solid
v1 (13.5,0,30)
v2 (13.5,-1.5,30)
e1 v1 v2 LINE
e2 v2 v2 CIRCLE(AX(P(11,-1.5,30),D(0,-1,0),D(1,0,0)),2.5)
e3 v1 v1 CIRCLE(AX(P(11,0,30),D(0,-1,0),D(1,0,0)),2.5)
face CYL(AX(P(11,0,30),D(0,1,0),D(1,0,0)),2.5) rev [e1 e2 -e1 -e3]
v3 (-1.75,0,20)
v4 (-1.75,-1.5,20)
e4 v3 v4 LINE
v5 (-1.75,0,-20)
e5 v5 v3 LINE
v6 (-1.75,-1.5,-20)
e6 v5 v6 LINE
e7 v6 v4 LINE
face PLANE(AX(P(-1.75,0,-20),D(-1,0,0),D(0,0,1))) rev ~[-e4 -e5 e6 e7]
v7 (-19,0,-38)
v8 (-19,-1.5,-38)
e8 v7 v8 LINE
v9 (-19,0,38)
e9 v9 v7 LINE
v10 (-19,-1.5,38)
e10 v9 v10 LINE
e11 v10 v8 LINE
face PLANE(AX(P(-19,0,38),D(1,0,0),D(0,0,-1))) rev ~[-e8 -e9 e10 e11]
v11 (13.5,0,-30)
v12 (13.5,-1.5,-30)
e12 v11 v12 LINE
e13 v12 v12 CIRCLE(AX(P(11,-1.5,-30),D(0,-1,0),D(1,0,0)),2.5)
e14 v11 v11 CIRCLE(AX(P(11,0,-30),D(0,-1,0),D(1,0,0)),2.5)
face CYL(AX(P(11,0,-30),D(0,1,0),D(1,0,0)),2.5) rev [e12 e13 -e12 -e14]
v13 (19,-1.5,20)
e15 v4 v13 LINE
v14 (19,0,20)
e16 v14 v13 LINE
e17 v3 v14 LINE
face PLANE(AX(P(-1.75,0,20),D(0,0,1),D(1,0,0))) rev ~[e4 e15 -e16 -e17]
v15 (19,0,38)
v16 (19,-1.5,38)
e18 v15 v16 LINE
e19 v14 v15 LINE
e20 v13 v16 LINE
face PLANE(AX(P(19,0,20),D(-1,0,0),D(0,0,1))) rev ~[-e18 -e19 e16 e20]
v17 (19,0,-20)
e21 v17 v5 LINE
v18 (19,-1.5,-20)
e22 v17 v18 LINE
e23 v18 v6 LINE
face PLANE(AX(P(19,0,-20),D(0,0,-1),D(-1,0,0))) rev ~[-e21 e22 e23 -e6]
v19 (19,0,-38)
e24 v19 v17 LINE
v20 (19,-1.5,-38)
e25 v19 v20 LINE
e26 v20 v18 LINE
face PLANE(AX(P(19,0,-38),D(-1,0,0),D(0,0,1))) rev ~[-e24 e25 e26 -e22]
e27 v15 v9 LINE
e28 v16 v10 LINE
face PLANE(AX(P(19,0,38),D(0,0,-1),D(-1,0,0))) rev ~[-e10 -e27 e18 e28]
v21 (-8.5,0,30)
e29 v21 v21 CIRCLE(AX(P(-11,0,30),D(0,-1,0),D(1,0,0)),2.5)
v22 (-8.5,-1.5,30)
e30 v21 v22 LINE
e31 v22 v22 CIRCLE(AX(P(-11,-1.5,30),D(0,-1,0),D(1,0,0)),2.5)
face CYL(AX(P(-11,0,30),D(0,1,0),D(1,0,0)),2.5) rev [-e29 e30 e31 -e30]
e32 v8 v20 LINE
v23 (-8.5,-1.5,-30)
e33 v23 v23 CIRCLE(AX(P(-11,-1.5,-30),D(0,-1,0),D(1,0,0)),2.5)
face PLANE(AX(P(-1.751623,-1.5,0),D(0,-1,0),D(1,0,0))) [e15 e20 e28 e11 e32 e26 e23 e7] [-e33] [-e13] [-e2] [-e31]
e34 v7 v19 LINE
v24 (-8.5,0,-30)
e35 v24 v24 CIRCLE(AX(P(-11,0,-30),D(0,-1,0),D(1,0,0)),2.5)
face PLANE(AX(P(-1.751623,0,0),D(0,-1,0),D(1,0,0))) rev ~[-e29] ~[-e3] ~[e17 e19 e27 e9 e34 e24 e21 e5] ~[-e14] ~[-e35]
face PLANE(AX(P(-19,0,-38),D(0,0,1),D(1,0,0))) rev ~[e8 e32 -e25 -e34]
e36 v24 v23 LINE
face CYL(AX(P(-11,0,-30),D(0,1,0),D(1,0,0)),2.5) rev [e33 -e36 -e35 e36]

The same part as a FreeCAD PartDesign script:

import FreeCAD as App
import Part
import Sketcher
from FreeCAD import Vector

doc = App.newDocument("Part")
body = doc.addObject("PartDesign::Body", "Body")

sketch1 = body.newObject("Sketcher::SketchObject", "Sketch")
sketch1.AttachmentSupport = (doc.getObject("XZ_Plane"), [""])
sketch1.MapMode = "FlatFace"
sketch1.addGeometry([
    Part.LineSegment(Vector(19, 20, 0), Vector(19, 38, 0)),
    Part.LineSegment(Vector(19, 38, 0), Vector(-19, 38, 0)),
    Part.LineSegment(Vector(-19, 38, 0), Vector(-19, -38, 0)),
    Part.LineSegment(Vector(-19, -38, 0), Vector(19, -38, 0)),
    Part.LineSegment(Vector(19, -38, 0), Vector(19, -20, 0)),
    Part.LineSegment(Vector(19, -20, 0), Vector(-1.8, -20, 0)),
    Part.LineSegment(Vector(-1.8, -20, 0), Vector(-1.8, 20, 0)),
    Part.LineSegment(Vector(-1.8, 20, 0), Vector(19, 20, 0)),
    Part.Circle(Vector(-11, -30, 0), Vector(0, 0, 1), 2.5),
    Part.Circle(Vector(11, -30, 0), Vector(0, 0, 1), 2.5),
    Part.Circle(Vector(-11, 30, 0), Vector(0, 0, 1), 2.5),
    Part.Circle(Vector(11, 30, 0), Vector(0, 0, 1), 2.5),
], False)
sketch1.addConstraint([
    Sketcher.Constraint("Coincident", 0, 2, 1, 1),
    Sketcher.Constraint("Coincident", 1, 2, 2, 1),
    Sketcher.Constraint("Coincident", 2, 2, 3, 1),
    Sketcher.Constraint("Coincident", 3, 2, 4, 1),
    Sketcher.Constraint("Coincident", 4, 2, 5, 1),
    Sketcher.Constraint("Coincident", 5, 2, 6, 1),
    Sketcher.Constraint("Coincident", 6, 2, 7, 1),
    Sketcher.Constraint("Coincident", 7, 2, 0, 1),
    Sketcher.Constraint("Vertical", 0),
    Sketcher.Constraint("Horizontal", 1),
    Sketcher.Constraint("Vertical", 2),
    Sketcher.Constraint("Horizontal", 3),
    Sketcher.Constraint("Vertical", 4),
    Sketcher.Constraint("Horizontal", 5),
    Sketcher.Constraint("Vertical", 6),
    Sketcher.Constraint("Horizontal", 7),
    Sketcher.Constraint("Equal", 8, 9),
    Sketcher.Constraint("Equal", 9, 10),
    Sketcher.Constraint("Equal", 10, 11),
    Sketcher.Constraint("Symmetric", 9, 3, 10, 3, -1, 1),
    Sketcher.Constraint("Symmetric", 8, 3, 11, 3, -1, 1),
    Sketcher.Constraint("Symmetric", 0, 2, 2, 2, -1, 1),
    Sketcher.Constraint("Symmetric", 8, 3, 9, 3, -2),
    Sketcher.Constraint("Symmetric", 4, 2, 7, 2, -1),
    Sketcher.Constraint("Diameter", 8, 5.0),
    Sketcher.Constraint("DistanceX", 1, 2, 1, 1, 38.0),
    Sketcher.Constraint("DistanceY", 0, 1, 0, 2, 18.0),
    Sketcher.Constraint("DistanceY", 2, 2, 2, 1, 76.0),
    Sketcher.Constraint("DistanceX", 8, 3, -1, 1, 11.0),
    Sketcher.Constraint("DistanceY", 8, 3, -1, 1, 30.0),
    Sketcher.Constraint("DistanceX", 5, 2, 5, 1, 20.75),
])
pad1 = body.newObject("PartDesign::Pad", "Pad")
pad1.Profile = sketch1
pad1.Length = 1.5

doc.recompute()
